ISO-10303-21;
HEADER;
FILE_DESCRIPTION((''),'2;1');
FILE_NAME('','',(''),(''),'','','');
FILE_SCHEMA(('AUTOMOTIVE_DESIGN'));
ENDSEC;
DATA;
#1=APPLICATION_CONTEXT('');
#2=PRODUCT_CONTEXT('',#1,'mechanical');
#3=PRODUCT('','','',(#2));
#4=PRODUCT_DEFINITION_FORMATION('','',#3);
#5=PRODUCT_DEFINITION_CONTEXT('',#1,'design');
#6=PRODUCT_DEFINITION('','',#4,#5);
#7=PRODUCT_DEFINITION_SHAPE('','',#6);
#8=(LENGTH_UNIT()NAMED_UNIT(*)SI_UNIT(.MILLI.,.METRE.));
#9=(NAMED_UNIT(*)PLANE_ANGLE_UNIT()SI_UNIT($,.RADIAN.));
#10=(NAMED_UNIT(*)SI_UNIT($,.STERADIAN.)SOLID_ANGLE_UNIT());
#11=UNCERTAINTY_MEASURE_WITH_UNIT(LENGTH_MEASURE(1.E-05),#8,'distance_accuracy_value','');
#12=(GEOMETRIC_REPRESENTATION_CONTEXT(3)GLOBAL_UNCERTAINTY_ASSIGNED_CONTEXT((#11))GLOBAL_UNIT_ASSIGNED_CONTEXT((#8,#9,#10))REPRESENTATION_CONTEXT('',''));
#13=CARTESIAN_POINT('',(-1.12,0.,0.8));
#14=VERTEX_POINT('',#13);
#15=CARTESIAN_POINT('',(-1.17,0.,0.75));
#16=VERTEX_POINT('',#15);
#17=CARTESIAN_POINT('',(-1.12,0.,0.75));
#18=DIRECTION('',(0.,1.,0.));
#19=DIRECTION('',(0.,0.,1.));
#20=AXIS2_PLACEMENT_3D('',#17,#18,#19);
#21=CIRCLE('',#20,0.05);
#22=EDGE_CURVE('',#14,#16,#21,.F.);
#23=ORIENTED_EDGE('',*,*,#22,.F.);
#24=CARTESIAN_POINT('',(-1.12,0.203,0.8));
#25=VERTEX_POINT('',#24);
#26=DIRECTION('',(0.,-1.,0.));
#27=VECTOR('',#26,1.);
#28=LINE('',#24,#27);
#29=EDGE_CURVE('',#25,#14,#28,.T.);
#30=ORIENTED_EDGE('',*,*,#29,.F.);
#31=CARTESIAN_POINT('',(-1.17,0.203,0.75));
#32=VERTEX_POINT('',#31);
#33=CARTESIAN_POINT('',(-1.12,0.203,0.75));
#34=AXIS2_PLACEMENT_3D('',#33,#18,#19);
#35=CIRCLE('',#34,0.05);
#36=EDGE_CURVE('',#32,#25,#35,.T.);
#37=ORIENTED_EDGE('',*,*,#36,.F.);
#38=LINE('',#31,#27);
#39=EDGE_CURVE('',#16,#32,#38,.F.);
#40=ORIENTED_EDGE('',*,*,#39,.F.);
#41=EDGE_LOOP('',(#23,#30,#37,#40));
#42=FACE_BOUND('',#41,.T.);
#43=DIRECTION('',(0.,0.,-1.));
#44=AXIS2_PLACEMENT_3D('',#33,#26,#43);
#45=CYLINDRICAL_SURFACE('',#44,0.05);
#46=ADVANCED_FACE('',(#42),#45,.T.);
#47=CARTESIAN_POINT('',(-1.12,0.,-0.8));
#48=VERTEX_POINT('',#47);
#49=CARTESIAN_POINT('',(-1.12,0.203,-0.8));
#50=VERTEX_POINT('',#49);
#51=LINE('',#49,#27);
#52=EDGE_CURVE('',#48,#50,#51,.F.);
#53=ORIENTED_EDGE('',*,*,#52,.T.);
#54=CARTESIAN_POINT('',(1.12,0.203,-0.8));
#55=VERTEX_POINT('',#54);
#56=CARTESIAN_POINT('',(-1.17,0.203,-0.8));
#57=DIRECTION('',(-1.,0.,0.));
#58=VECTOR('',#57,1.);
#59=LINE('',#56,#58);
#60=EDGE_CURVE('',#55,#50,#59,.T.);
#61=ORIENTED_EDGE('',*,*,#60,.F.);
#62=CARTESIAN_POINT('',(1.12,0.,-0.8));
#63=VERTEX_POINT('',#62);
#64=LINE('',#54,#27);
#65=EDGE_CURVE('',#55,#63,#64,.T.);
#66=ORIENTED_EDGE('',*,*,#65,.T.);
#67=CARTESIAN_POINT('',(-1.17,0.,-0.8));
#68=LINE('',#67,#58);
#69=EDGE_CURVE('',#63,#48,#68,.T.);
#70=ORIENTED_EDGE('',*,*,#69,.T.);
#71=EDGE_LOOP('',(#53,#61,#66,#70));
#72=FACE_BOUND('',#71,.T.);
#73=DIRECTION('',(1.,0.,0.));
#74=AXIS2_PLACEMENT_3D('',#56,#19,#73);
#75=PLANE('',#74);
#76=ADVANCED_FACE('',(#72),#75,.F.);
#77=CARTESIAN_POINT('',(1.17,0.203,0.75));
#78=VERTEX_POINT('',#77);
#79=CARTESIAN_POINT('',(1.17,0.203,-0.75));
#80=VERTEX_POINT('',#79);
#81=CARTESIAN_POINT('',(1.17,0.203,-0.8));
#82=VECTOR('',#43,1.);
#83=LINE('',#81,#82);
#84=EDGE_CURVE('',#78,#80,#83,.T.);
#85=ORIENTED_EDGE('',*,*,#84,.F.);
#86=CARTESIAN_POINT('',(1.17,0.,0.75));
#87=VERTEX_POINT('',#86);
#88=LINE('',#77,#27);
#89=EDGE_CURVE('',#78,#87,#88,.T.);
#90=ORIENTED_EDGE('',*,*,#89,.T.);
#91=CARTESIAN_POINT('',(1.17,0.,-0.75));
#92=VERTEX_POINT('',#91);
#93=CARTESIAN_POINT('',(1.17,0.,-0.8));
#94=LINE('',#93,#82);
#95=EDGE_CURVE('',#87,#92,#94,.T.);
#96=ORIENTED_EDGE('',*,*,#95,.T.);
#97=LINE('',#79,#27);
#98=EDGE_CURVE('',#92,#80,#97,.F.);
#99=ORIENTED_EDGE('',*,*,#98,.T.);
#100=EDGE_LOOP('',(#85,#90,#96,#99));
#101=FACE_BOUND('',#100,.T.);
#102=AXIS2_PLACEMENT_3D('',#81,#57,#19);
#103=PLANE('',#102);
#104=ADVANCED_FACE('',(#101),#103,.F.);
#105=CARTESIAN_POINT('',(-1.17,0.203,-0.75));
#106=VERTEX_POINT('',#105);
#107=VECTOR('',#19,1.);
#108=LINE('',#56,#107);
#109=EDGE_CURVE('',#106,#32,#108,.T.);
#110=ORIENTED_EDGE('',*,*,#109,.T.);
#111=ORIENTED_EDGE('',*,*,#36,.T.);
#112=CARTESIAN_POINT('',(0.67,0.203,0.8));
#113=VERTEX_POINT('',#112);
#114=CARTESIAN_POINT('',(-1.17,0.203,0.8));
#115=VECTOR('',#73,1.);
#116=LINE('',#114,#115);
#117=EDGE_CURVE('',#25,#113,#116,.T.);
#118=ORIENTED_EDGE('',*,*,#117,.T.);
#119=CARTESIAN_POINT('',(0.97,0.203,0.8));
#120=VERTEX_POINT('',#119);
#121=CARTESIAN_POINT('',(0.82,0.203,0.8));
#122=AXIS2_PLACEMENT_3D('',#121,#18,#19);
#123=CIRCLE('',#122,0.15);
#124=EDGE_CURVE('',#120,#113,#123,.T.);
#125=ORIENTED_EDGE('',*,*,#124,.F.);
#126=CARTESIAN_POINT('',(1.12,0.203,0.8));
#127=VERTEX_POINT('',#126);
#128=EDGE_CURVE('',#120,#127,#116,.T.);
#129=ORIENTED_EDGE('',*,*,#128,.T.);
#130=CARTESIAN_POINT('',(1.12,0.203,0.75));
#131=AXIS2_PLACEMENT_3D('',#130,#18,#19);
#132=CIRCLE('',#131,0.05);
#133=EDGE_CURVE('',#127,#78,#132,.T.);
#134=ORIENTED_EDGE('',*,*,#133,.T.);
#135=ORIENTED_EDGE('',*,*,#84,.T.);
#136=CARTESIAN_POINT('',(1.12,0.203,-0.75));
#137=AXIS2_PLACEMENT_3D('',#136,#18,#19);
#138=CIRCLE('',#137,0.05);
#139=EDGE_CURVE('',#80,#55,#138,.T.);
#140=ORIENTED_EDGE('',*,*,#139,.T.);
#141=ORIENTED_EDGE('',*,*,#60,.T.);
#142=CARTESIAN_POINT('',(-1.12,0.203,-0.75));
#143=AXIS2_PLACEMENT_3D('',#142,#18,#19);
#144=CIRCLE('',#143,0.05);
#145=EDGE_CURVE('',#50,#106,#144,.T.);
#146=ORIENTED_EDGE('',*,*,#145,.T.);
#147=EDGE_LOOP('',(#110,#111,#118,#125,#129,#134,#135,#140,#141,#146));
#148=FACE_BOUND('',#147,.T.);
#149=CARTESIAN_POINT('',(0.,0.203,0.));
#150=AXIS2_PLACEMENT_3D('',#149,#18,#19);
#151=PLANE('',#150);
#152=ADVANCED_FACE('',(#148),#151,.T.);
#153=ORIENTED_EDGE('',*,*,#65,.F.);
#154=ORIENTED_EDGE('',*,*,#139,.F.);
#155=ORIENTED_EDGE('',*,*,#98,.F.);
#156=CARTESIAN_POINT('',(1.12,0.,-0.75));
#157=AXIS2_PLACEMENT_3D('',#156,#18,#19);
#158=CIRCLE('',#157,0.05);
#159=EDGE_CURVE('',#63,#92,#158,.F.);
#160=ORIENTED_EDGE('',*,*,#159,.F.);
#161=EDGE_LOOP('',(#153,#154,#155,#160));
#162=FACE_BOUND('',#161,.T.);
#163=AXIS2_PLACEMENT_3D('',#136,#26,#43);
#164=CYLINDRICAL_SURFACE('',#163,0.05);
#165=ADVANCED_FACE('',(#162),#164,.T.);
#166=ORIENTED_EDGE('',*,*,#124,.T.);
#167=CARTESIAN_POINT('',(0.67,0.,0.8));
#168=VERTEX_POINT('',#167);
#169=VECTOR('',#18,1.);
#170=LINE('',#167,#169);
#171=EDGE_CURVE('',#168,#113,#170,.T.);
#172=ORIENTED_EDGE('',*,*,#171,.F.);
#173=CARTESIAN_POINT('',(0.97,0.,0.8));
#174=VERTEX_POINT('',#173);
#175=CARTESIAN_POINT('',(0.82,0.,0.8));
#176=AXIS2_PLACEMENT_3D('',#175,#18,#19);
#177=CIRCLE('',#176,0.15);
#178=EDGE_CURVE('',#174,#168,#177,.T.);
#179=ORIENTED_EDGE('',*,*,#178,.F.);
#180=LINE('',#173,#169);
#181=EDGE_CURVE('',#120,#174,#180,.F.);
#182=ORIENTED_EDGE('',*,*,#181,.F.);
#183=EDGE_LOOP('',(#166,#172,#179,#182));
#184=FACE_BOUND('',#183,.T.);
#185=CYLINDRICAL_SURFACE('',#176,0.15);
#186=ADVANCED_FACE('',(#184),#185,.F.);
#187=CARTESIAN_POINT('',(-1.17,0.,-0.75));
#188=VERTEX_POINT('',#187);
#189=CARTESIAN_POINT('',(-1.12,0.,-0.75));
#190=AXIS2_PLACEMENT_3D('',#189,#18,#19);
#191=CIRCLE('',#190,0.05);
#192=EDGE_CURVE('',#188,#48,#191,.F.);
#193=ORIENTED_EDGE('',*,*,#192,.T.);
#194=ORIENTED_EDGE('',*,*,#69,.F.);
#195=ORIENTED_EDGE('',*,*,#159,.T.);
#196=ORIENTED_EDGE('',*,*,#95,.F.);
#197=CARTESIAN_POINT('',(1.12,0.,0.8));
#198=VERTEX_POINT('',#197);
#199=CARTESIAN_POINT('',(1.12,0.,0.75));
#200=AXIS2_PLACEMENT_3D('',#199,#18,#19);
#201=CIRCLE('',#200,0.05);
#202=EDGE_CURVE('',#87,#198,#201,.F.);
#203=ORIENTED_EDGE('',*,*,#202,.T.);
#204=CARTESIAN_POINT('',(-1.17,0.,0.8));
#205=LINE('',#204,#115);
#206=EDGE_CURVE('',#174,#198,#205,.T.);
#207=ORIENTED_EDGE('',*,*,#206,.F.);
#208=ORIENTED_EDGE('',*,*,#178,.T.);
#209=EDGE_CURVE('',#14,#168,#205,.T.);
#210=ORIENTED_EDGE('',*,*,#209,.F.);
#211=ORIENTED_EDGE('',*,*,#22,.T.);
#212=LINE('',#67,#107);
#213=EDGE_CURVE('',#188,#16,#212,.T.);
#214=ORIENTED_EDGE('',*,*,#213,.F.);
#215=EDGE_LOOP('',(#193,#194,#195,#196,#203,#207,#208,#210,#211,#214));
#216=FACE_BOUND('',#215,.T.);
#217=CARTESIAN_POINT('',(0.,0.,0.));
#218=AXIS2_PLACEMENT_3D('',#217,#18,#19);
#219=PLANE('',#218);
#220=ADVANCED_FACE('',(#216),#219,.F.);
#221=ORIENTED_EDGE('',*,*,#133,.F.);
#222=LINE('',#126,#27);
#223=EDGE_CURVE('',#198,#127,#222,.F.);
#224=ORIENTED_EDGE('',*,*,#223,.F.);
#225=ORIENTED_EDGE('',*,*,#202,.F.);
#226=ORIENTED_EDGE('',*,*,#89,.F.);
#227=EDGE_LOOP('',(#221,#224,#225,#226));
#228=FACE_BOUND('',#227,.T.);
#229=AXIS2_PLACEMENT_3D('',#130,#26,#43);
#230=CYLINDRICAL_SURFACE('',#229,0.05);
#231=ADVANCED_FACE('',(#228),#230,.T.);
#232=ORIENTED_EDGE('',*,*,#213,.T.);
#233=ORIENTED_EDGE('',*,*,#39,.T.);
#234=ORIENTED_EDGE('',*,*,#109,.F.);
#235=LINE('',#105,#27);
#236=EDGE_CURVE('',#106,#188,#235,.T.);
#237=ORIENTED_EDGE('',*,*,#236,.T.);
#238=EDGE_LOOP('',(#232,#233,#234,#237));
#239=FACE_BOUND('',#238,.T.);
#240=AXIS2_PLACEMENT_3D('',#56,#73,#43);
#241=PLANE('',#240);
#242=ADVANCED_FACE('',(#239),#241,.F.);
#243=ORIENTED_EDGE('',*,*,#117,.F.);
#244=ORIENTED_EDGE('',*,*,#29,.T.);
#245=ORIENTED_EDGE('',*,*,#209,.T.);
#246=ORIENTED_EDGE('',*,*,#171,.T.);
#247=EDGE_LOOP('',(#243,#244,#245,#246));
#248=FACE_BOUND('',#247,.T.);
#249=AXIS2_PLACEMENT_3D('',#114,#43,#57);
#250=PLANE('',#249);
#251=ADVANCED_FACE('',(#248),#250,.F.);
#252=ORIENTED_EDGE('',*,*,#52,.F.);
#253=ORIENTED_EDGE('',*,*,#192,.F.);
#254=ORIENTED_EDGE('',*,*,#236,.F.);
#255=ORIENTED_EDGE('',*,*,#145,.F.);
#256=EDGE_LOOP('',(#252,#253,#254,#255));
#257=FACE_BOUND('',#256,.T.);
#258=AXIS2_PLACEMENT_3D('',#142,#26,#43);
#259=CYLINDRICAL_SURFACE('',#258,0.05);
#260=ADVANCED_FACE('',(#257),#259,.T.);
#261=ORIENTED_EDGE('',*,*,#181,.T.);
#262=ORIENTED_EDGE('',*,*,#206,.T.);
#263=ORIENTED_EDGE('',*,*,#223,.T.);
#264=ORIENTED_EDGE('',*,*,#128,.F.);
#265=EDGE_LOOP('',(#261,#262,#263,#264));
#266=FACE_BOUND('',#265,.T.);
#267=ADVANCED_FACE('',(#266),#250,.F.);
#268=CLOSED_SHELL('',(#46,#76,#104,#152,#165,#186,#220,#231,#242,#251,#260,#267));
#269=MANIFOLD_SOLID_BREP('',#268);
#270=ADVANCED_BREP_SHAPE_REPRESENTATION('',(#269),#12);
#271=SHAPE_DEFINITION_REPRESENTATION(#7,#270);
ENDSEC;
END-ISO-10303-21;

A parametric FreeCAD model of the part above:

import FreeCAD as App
import Part
import Sketcher


def edges_at(feature, points):
    """Names of the edges that pass closest to the given points."""
    edges = feature.Shape.Edges
    near = lambda p: min(range(len(edges)), key=lambda i: edges[i].distToShape(Part.Vertex(*p))[0])
    return sorted({f"Edge{near(p) + 1}" for p in points})


def add_polygon(sketch, points):
    """Adds a closed chain of lines whose ends are joined by coincident constraints."""
    first, n = sketch.GeometryCount, len(points)
    for a, b in zip(points, points[1:] + points[:1]):
        sketch.addGeometry(Part.LineSegment(App.Vector(*a, 0), App.Vector(*b, 0)), False)
    for i in range(n):
        sketch.addConstraint(Sketcher.Constraint("Coincident", first + i, 2, first + (i + 1) % n, 1))

doc = App.newDocument("Part")
body = doc.addObject("PartDesign::Body", "Body")

sketch1 = doc.addObject("Sketcher::SketchObject", "Sketch")
body.addObject(sketch1)
sketch1.AttachmentSupport = (doc.XZ_Plane, [""])
sketch1.MapMode = "FlatFace"
add_polygon(sketch1, [(-1.2, -0.8), (-1.2, 0.8), (1.2, 0.8), (1.2, -0.8)])
sketch1.addConstraint(Sketcher.Constraint("Vertical", 0))
sketch1.addConstraint(Sketcher.Constraint("Horizontal", 1))
sketch1.addConstraint(Sketcher.Constraint("Vertical", 2))
sketch1.addConstraint(Sketcher.Constraint("Horizontal", 3))
sketch1.addConstraint(Sketcher.Constraint("Symmetric", 0, 2, 2, 2, -1, 1))
sketch1.addConstraint(Sketcher.Constraint("DistanceY", 0, 1, 0, 2, 1.6))
sketch1.addConstraint(Sketcher.Constraint("DistanceX", 1, 1, 1, 2, 2.34))
pad1 = doc.addObject("PartDesign::Pad", "Pad")
body.addObject(pad1)
pad1.Profile = sketch1
pad1.Length = 0.203
pad1.Reversed = True
doc.recompute()

fillet = doc.addObject("PartDesign::Fillet", "Fillet")
body.addObject(fillet)
fillet.Base = (pad1, edges_at(pad1, [
    (1.17, 0.102, 0.8),
    (-1.17, 0.102, 0.8),
    (-1.17, 0.102, -0.8),
    (1.17, 0.102, -0.8),
]))
fillet.Radius = 0.05

sketch2 = doc.addObject("Sketcher::SketchObject", "Sketch001")
body.addObject(sketch2)
sketch2.AttachmentSupport = (doc.XZ_Plane, [""])
sketch2.MapMode = "FlatFace"
sketch2.AttachmentOffset = App.Placement(App.Vector(0, 0, -0.203), App.Rotation())
sketch2.addGeometry(Part.Circle(App.Vector(0.82, 0.8, 0), App.Vector(0, 0, 1), 0.15), False)
sketch2.addConstraint(Sketcher.Constraint("Diameter", 0, 0.3))
sketch2.addConstraint(Sketcher.Constraint("DistanceY", -1, 1, 0, 3, 0.8))
sketch2.addConstraint(Sketcher.Constraint("DistanceX", -1, 1, 0, 3, 0.82))
pocket1 = doc.addObject("PartDesign::Pocket", "Pocket")
body.addObject(pocket1)
pocket1.Profile = sketch2
pocket1.Type = "ThroughAll"
pocket1.Reversed = True

doc.recompute()
